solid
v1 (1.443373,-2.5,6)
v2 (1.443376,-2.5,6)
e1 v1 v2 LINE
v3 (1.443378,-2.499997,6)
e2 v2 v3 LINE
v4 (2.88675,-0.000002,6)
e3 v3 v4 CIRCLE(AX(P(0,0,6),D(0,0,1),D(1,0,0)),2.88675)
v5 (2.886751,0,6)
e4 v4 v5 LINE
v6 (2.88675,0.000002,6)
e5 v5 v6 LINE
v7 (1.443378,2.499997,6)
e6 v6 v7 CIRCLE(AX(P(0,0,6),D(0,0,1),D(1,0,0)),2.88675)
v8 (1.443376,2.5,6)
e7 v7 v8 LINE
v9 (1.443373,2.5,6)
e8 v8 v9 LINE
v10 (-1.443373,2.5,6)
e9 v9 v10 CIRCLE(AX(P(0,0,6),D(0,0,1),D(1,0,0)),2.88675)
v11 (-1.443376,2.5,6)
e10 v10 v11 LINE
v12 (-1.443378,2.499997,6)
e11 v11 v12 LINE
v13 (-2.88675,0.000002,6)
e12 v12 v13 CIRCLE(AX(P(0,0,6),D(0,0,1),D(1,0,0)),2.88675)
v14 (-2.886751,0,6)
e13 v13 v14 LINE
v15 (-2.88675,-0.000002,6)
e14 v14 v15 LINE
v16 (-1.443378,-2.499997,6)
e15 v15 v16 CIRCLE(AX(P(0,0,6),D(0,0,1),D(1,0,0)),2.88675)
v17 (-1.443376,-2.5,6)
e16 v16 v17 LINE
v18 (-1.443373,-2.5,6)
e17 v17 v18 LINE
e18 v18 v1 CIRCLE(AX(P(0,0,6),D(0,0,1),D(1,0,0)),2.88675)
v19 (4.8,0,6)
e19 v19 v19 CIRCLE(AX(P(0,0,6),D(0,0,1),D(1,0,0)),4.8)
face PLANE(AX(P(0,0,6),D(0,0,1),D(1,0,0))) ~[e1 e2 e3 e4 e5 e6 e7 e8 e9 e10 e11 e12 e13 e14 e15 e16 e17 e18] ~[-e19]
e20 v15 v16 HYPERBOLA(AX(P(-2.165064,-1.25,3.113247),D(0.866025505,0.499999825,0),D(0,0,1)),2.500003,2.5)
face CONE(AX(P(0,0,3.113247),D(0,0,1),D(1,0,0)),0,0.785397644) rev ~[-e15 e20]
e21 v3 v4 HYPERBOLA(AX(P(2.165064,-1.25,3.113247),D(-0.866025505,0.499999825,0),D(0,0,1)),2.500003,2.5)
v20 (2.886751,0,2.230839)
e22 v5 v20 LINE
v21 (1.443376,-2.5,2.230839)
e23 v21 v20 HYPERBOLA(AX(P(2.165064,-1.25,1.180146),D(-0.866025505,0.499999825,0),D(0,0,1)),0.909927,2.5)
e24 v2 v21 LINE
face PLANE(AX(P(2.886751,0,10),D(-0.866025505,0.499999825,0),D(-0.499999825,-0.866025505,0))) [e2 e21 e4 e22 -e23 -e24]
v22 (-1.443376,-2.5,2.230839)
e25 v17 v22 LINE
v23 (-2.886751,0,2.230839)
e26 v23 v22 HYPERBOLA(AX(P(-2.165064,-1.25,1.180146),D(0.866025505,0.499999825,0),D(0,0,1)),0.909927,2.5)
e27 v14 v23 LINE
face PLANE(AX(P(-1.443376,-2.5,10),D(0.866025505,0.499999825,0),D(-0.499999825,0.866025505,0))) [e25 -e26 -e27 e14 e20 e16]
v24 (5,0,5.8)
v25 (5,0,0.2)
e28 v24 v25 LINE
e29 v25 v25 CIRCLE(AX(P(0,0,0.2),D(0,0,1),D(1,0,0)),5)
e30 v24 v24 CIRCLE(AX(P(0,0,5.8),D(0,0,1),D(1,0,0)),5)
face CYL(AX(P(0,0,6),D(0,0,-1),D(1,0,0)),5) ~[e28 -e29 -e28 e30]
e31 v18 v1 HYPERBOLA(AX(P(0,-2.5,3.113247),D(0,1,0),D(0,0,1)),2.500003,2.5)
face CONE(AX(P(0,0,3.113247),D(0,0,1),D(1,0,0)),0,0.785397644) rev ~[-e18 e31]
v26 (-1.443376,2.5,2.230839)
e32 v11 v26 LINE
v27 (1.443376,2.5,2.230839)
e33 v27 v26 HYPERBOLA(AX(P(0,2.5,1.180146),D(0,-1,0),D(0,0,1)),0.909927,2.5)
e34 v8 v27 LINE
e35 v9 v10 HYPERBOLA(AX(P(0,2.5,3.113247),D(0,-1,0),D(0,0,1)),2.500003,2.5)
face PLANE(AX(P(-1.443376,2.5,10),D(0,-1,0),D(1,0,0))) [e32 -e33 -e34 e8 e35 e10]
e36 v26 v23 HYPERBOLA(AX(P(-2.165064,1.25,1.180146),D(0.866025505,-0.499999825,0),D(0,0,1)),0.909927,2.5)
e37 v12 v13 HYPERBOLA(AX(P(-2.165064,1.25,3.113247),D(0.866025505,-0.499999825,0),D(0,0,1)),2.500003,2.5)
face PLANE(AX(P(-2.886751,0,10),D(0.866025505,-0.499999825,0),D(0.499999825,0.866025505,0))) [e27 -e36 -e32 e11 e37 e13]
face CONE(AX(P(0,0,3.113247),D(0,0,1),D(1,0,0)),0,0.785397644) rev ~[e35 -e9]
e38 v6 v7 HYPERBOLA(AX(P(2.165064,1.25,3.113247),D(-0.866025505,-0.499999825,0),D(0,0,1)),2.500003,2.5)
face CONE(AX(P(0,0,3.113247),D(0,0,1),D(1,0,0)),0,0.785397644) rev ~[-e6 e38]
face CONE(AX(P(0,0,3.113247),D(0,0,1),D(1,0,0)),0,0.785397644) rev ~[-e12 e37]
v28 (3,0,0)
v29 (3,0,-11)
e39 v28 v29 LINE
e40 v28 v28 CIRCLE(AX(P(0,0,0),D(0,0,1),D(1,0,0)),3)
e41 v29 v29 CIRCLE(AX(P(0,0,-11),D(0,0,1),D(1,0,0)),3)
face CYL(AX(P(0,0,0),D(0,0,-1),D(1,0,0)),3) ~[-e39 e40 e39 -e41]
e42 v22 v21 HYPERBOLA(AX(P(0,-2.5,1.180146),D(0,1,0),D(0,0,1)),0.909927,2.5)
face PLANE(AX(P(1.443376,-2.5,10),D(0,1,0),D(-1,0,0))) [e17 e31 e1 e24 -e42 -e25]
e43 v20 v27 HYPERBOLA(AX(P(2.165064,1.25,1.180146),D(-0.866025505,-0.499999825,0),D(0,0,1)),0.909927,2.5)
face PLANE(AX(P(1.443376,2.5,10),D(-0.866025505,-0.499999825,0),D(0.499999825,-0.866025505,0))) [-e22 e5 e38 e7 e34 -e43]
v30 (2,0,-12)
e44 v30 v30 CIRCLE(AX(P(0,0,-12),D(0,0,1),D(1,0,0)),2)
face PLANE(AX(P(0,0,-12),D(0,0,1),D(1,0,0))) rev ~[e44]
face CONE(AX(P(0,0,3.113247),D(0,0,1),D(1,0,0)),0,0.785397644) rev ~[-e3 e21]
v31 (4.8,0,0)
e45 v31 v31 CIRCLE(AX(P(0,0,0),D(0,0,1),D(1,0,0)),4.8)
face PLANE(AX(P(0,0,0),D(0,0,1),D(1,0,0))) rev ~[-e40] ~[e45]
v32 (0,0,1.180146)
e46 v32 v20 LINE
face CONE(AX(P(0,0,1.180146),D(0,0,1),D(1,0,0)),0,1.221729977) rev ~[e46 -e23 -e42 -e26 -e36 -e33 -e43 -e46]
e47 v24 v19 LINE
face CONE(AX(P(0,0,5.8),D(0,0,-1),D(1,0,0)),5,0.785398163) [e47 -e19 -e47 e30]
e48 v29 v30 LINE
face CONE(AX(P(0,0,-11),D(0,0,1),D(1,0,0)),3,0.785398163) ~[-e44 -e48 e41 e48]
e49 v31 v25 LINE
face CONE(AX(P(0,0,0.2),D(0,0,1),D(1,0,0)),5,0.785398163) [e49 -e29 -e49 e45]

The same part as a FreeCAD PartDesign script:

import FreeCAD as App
import Part
import Sketcher

V = App.Vector
Q = App.Units.Quantity


def edges_at(feature, points):
    """Names of the edges that pass closest to the given points."""
    edges = feature.Shape.Edges
    near = lambda p: min(range(len(edges)), key=lambda i: edges[i].distToShape(Part.Vertex(*p))[0])
    return sorted({f"Edge{near(p) + 1}" for p in points})

doc = App.newDocument("Part")
params = doc.addObject("Spreadsheet::Sheet", "Params")
for row, (alias, value) in enumerate([
    ("sketch1_width", "5 mm"),
    ("sketch1_height", "7 mm"),
    ("revolution_angle", "360 deg"),
    ("sketch2_diameter", "12 mm"),
    ("sketch3_width", "3 mm"),
    ("sketch3_width2", "2 mm"),
    ("sketch3_height", "12 mm"),
    ("sketch3_height2", "6 mm"),
    ("revolution2_angle", "360 deg"),
    ("chamfer_size", "1 mm"),
    ("chamfer2_size", "0.2 mm"),
], start=1):
    params.set(f"A{row}", alias)
    params.set(f"B{row}", "=" + value)
    params.setAlias(f"B{row}", alias)

body = doc.addObject("PartDesign::Body", "Body")

sketch1 = doc.addObject("Sketcher::SketchObject", "Sketch")
body.addObject(sketch1)
sketch1.AttachmentSupport = (doc.XZ_Plane, [""])
sketch1.MapMode = "FlatFace"
sketch1.addGeometry([
    Part.LineSegment(V(0, 1, 0), V(5, 3, 0)),
    Part.LineSegment(V(5, 3, 0), V(5, 10, 0)),
    Part.LineSegment(V(5, 10, 0), V(0, 10, 0)),
    Part.LineSegment(V(0, 10, 0), V(0, 1, 0)),
], False)
sketch1.addConstraint([
    Sketcher.Constraint("Coincident", 0, 2, 1, 1),
    Sketcher.Constraint("Coincident", 1, 2, 2, 1),
    Sketcher.Constraint("Coincident", 2, 2, 3, 1),
    Sketcher.Constraint("Coincident", 3, 2, 0, 1),
    Sketcher.Constraint("Vertical", 1),
    Sketcher.Constraint("Horizontal", 2),
    Sketcher.Constraint("Vertical", 3),
    Sketcher.Constraint("PointOnObject", 2, 2, -2),
    Sketcher.Constraint("DistanceX", 2, 2, 2, 1, Q("5 mm")),
    Sketcher.Constraint("DistanceY", 1, 1, 1, 2, Q("7 mm")),
    Sketcher.Constraint("DistanceY", -1, 1, 0, 2, Q("3 mm")),
    Sketcher.Constraint("Distance", 0, Q("5.32089 mm")),
])
sketch1.setExpression("Constraints[8]", "Params.sketch1_width")
sketch1.setExpression("Constraints[9]", "Params.sketch1_height")
revolution = doc.addObject("PartDesign::Revolution", "Revolution")
body.addObject(revolution)
revolution.Profile = sketch1
revolution.ReferenceAxis = (sketch1, ["V_Axis"])
revolution.setExpression("Angle", "Params.revolution_angle")

sketch2 = doc.addObject("Sketcher::SketchObject", "Sketch001")
body.addObject(sketch2)
sketch2.AttachmentSupport = (doc.XY_Plane, [""])
sketch2.MapMode = "FlatFace"
sketch2.AttachmentOffset = App.Placement(V(0, 0, 10), App.Rotation())
sketch2.addGeometry([
    Part.Circle(V(0, 0, 0), V(0, 0, 1), 6),
    Part.LineSegment(V(2.9, 0, 0), V(1.4, -2.5, 0)),
    Part.LineSegment(V(1.4, -2.5, 0), V(-1.4, -2.5, 0)),
    Part.LineSegment(V(-1.4, -2.5, 0), V(-2.9, 0, 0)),
    Part.LineSegment(V(-2.9, 0, 0), V(-1.4, 2.5, 0)),
    Part.LineSegment(V(-1.4, 2.5, 0), V(1.4, 2.5, 0)),
    Part.LineSegment(V(1.4, 2.5, 0), V(2.9, 0, 0)),
], False)
sketch2.addConstraint([
    Sketcher.Constraint("Coincident", 1, 2, 2, 1),
    Sketcher.Constraint("Coincident", 2, 2, 3, 1),
    Sketcher.Constraint("Coincident", 3, 2, 4, 1),
    Sketcher.Constraint("Coincident", 4, 2, 5, 1),
    Sketcher.Constraint("Coincident", 5, 2, 6, 1),
    Sketcher.Constraint("Coincident", 6, 2, 1, 1),
    Sketcher.Constraint("Horizontal", 2),
    Sketcher.Constraint("Horizontal", 5),
    Sketcher.Constraint("Coincident", 0, 3, -1, 1),
    Sketcher.Constraint("Symmetric", 1, 2, 4, 2, -1, 1),
    Sketcher.Constraint("Symmetric", 3, 2, 6, 2, -1, 1),
    Sketcher.Constraint("PointOnObject", 3, 2, -1),
    Sketcher.Constraint("Parallel", 3, 6),
    Sketcher.Constraint("Vertical", 2, 2, 4, 2),
    Sketcher.Constraint("Diameter", 0, Q("12 mm")),
    Sketcher.Constraint("Angle", 1, Q("-119.999988 deg")),
    Sketcher.Constraint("DistanceY", 2, 2, 4, 2, Q("5 mm")),
    Sketcher.Constraint("DistanceX", 2, 2, 2, 1, Q("2.886752 mm")),
])
sketch2.setExpression("Constraints[14]", "Params.sketch2_diameter")
pocket1 = doc.addObject("PartDesign::Pocket", "Pocket")
body.addObject(pocket1)
pocket1.Profile = sketch2
pocket1.Type = "ThroughAll"
body2 = doc.addObject("PartDesign::Body", "Body001")

sketch3 = doc.addObject("Sketcher::SketchObject", "Sketch002")
body2.addObject(sketch3)
sketch3.AttachmentSupport = (doc.getObject("XZ_Plane001"), [""])
sketch3.MapMode = "FlatFace"
sketch3.addGeometry([
    Part.LineSegment(V(5, 6, 0), V(2.9, 6, 0)),
    Part.LineSegment(V(2.9, 6, 0), V(0, 3.1, 0)),
    Part.LineSegment(V(0, 3.1, 0), V(0, -12, 0)),
    Part.LineSegment(V(0, -12, 0), V(3, -12, 0)),
    Part.LineSegment(V(3, -12, 0), V(3, 0, 0)),
    Part.LineSegment(V(3, 0, 0), V(5, 0, 0)),
    Part.LineSegment(V(5, 0, 0), V(5, 6, 0)),
], False)
sketch3.addConstraint([
    Sketcher.Constraint("Coincident", 0, 2, 1, 1),
    Sketcher.Constraint("Coincident", 1, 2, 2, 1),
    Sketcher.Constraint("Coincident", 2, 2, 3, 1),
    Sketcher.Constraint("Coincident", 3, 2, 4, 1),
    Sketcher.Constraint("Coincident", 4, 2, 5, 1),
    Sketcher.Constraint("Coincident", 5, 2, 6, 1),
    Sketcher.Constraint("Coincident", 6, 2, 0, 1),
    Sketcher.Constraint("Horizontal", 0),
    Sketcher.Constraint("Vertical", 2),
    Sketcher.Constraint("Horizontal", 3),
    Sketcher.Constraint("Vertical", 4),
    Sketcher.Constraint("Horizontal", 5),
    Sketcher.Constraint("Vertical", 6),
    Sketcher.Constraint("PointOnObject", 1, 2, -2),
    Sketcher.Constraint("PointOnObject", 4, 2, -1),
    Sketcher.Constraint("DistanceX", 3, 1, 3, 2, Q("3 mm")),
    Sketcher.Constraint("DistanceX", 5, 1, 5, 2, Q("2 mm")),
    Sketcher.Constraint("DistanceY", 4, 1, 4, 2, Q("12 mm")),
    Sketcher.Constraint("DistanceY", 6, 1, 6, 2, Q("6 mm")),
    Sketcher.Constraint("DistanceX", 0, 2, 0, 1, Q("2.11325 mm")),
    Sketcher.Constraint("DistanceY", 2, 2, 2, 1, Q("15.113247 mm")),
])
sketch3.setExpression("Constraints[15]", "Params.sketch3_width")
sketch3.setExpression("Constraints[16]", "Params.sketch3_width2")
sketch3.setExpression("Constraints[17]", "Params.sketch3_height")
sketch3.setExpression("Constraints[18]", "Params.sketch3_height2")
revolution2 = doc.addObject("PartDesign::Revolution", "Revolution001")
body2.addObject(revolution2)
revolution2.Profile = sketch3
revolution2.ReferenceAxis = (sketch3, ["V_Axis"])
revolution2.setExpression("Angle", "Params.revolution2_angle")
doc.recompute()

boolean = doc.addObject("PartDesign::Boolean", "Boolean")
body2.addObject(boolean)
boolean.Type = "Cut"
boolean.addObjects([body])
doc.recompute()

chamfer = doc.addObject("PartDesign::Chamfer", "Chamfer")
body2.addObject(chamfer)
chamfer.Base = (boolean, edges_at(boolean, [(-3, 0, -12)]))
chamfer.setExpression("Size", "Params.chamfer_size")
doc.recompute()

chamfer2 = doc.addObject("PartDesign::Chamfer", "Chamfer001")
body2.addObject(chamfer2)
chamfer2.Base = (chamfer, edges_at(chamfer, [(-5, 0, 6), (-5, 0, 0)]))
chamfer2.setExpression("Size", "Params.chamfer2_size")

doc.recompute()
